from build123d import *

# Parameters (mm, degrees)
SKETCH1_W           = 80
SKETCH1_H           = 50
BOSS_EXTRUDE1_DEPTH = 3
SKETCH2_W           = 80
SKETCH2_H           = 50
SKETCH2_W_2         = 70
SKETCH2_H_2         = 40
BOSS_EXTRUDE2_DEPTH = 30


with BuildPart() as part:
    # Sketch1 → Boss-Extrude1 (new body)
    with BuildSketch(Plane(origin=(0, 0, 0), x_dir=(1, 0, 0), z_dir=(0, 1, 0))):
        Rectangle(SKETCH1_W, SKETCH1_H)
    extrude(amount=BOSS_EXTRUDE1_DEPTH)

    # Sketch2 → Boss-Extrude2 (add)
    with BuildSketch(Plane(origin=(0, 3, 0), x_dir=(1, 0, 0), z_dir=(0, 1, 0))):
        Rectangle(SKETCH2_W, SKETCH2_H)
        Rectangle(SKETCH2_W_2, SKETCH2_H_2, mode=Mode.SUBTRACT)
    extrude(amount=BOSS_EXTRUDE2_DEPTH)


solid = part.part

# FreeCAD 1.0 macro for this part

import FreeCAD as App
import Part
import Sketcher
Q = App.Units.Quantity

doc = App.newDocument("Part")
body = doc.addObject("PartDesign::Body", "Body")

sketch1 = doc.addObject("Sketcher::SketchObject", "Sketch")
body.addObject(sketch1)
sketch1.AttachmentSupport = (doc.XZ_Plane, [""])
sketch1.MapMode = "FlatFace"
sketch1.addGeometry(Part.LineSegment(App.Vector(-40, -25, 0), App.Vector(-40, 25, 0)), False)
sketch1.addGeometry(Part.LineSegment(App.Vector(-40, 25, 0), App.Vector(40, 25, 0)), False)
sketch1.addGeometry(Part.LineSegment(App.Vector(40, 25, 0), App.Vector(40, -25, 0)), False)
sketch1.addGeometry(Part.LineSegment(App.Vector(40, -25, 0), App.Vector(-40, -25, 0)), False)
sketch1.addConstraint(Sketcher.Constraint("Coincident", 0, 2, 1, 1))
sketch1.addConstraint(Sketcher.Constraint("Coincident", 1, 2, 2, 1))
sketch1.addConstraint(Sketcher.Constraint("Coincident", 2, 2, 3, 1))
sketch1.addConstraint(Sketcher.Constraint("Coincident", 3, 2, 0, 1))
sketch1.addConstraint(Sketcher.Constraint("Vertical", 0))
sketch1.addConstraint(Sketcher.Constraint("Horizontal", 1))
sketch1.addConstraint(Sketcher.Constraint("Vertical", 2))
sketch1.addConstraint(Sketcher.Constraint("Horizontal", 3))
sketch1.addConstraint(Sketcher.Constraint("Symmetric", 0, 2, 2, 2, -1, 1))
sketch1.addConstraint(Sketcher.Constraint("DistanceX", 1, 1, 1, 2, Q("80 mm")))
sketch1.addConstraint(Sketcher.Constraint("DistanceY", 0, 1, 0, 2, Q("50 mm")))
pad1 = doc.addObject("PartDesign::Pad", "Pad")
body.addObject(pad1)
pad1.Profile = sketch1
pad1.Length = 3
pad1.Reversed = True

sketch2 = doc.addObject("Sketcher::SketchObject", "Sketch001")
body.addObject(sketch2)
sketch2.AttachmentSupport = (doc.XZ_Plane, [""])
sketch2.MapMode = "FlatFace"
sketch2.AttachmentOffset = App.Placement(App.Vector(0, 0, -3), App.Rotation())
sketch2.addGeometry(Part.LineSegment(App.Vector(-40, -25, 0), App.Vector(-40, 25, 0)), False)
sketch2.addGeometry(Part.LineSegment(App.Vector(-40, 25, 0), App.Vector(40, 25, 0)), False)
sketch2.addGeometry(Part.LineSegment(App.Vector(40, 25, 0), App.Vector(40, -25, 0)), False)
sketch2.addGeometry(Part.LineSegment(App.Vector(40, -25, 0), App.Vector(-40, -25, 0)), False)
sketch2.addGeometry(Part.LineSegment(App.Vector(35, 20, 0), App.Vector(-35, 20, 0)), False)
sketch2.addGeometry(Part.LineSegment(App.Vector(-35, 20, 0), App.Vector(-35, -20, 0)), False)
sketch2.addGeometry(Part.LineSegment(App.Vector(-35, -20, 0), App.Vector(35, -20, 0)), False)
sketch2.addGeometry(Part.LineSegment(App.Vector(35, -20, 0), App.Vector(35, 20, 0)), False)
sketch2.addConstraint(Sketcher.Constraint("Coincident", 0, 2, 1, 1))
sketch2.addConstraint(Sketcher.Constraint("Coincident", 1, 2, 2, 1))
sketch2.addConstraint(Sketcher.Constraint("Coincident", 2, 2, 3, 1))
sketch2.addConstraint(Sketcher.Constraint("Coincident", 3, 2, 0, 1))
sketch2.addConstraint(Sketcher.Constraint("Coincident", 4, 2, 5, 1))
sketch2.addConstraint(Sketcher.Constraint("Coincident", 5, 2, 6, 1))
sketch2.addConstraint(Sketcher.Constraint("Coincident", 6, 2, 7, 1))
sketch2.addConstraint(Sketcher.Constraint("Coincident", 7, 2, 4, 1))
sketch2.addConstraint(Sketcher.Constraint("Vertical", 0))
sketch2.addConstraint(Sketcher.Constraint("Horizontal", 1))
sketch2.addConstraint(Sketcher.Constraint("Vertical", 2))
sketch2.addConstraint(Sketcher.Constraint("Horizontal", 3))
sketch2.addConstraint(Sketcher.Constraint("Horizontal", 4))
sketch2.addConstraint(Sketcher.Constraint("Vertical", 5))
sketch2.addConstraint(Sketcher.Constraint("Horizontal", 6))
sketch2.addConstraint(Sketcher.Constraint("Vertical", 7))
sketch2.addConstraint(Sketcher.Constraint("Symmetric", 0, 2, 2, 2, -1, 1))
sketch2.addConstraint(Sketcher.Constraint("Symmetric", 4, 2, 6, 2, -1, 1))
sketch2.addConstraint(Sketcher.Constraint("DistanceX", 1, 1, 1, 2, Q("80 mm")))
sketch2.addConstraint(Sketcher.Constraint("DistanceX", 4, 2, 4, 1, Q("70 mm")))
sketch2.addConstraint(Sketcher.Constraint("DistanceY", 0, 1, 0, 2, Q("50 mm")))
sketch2.addConstraint(Sketcher.Constraint("DistanceY", 5, 2, 5, 1, Q("40 mm")))
pad2 = doc.addObject("PartDesign::Pad", "Pad001")
body.addObject(pad2)
pad2.Profile = sketch2
pad2.Length = 30
pad2.Reversed = True

doc.recompute()
